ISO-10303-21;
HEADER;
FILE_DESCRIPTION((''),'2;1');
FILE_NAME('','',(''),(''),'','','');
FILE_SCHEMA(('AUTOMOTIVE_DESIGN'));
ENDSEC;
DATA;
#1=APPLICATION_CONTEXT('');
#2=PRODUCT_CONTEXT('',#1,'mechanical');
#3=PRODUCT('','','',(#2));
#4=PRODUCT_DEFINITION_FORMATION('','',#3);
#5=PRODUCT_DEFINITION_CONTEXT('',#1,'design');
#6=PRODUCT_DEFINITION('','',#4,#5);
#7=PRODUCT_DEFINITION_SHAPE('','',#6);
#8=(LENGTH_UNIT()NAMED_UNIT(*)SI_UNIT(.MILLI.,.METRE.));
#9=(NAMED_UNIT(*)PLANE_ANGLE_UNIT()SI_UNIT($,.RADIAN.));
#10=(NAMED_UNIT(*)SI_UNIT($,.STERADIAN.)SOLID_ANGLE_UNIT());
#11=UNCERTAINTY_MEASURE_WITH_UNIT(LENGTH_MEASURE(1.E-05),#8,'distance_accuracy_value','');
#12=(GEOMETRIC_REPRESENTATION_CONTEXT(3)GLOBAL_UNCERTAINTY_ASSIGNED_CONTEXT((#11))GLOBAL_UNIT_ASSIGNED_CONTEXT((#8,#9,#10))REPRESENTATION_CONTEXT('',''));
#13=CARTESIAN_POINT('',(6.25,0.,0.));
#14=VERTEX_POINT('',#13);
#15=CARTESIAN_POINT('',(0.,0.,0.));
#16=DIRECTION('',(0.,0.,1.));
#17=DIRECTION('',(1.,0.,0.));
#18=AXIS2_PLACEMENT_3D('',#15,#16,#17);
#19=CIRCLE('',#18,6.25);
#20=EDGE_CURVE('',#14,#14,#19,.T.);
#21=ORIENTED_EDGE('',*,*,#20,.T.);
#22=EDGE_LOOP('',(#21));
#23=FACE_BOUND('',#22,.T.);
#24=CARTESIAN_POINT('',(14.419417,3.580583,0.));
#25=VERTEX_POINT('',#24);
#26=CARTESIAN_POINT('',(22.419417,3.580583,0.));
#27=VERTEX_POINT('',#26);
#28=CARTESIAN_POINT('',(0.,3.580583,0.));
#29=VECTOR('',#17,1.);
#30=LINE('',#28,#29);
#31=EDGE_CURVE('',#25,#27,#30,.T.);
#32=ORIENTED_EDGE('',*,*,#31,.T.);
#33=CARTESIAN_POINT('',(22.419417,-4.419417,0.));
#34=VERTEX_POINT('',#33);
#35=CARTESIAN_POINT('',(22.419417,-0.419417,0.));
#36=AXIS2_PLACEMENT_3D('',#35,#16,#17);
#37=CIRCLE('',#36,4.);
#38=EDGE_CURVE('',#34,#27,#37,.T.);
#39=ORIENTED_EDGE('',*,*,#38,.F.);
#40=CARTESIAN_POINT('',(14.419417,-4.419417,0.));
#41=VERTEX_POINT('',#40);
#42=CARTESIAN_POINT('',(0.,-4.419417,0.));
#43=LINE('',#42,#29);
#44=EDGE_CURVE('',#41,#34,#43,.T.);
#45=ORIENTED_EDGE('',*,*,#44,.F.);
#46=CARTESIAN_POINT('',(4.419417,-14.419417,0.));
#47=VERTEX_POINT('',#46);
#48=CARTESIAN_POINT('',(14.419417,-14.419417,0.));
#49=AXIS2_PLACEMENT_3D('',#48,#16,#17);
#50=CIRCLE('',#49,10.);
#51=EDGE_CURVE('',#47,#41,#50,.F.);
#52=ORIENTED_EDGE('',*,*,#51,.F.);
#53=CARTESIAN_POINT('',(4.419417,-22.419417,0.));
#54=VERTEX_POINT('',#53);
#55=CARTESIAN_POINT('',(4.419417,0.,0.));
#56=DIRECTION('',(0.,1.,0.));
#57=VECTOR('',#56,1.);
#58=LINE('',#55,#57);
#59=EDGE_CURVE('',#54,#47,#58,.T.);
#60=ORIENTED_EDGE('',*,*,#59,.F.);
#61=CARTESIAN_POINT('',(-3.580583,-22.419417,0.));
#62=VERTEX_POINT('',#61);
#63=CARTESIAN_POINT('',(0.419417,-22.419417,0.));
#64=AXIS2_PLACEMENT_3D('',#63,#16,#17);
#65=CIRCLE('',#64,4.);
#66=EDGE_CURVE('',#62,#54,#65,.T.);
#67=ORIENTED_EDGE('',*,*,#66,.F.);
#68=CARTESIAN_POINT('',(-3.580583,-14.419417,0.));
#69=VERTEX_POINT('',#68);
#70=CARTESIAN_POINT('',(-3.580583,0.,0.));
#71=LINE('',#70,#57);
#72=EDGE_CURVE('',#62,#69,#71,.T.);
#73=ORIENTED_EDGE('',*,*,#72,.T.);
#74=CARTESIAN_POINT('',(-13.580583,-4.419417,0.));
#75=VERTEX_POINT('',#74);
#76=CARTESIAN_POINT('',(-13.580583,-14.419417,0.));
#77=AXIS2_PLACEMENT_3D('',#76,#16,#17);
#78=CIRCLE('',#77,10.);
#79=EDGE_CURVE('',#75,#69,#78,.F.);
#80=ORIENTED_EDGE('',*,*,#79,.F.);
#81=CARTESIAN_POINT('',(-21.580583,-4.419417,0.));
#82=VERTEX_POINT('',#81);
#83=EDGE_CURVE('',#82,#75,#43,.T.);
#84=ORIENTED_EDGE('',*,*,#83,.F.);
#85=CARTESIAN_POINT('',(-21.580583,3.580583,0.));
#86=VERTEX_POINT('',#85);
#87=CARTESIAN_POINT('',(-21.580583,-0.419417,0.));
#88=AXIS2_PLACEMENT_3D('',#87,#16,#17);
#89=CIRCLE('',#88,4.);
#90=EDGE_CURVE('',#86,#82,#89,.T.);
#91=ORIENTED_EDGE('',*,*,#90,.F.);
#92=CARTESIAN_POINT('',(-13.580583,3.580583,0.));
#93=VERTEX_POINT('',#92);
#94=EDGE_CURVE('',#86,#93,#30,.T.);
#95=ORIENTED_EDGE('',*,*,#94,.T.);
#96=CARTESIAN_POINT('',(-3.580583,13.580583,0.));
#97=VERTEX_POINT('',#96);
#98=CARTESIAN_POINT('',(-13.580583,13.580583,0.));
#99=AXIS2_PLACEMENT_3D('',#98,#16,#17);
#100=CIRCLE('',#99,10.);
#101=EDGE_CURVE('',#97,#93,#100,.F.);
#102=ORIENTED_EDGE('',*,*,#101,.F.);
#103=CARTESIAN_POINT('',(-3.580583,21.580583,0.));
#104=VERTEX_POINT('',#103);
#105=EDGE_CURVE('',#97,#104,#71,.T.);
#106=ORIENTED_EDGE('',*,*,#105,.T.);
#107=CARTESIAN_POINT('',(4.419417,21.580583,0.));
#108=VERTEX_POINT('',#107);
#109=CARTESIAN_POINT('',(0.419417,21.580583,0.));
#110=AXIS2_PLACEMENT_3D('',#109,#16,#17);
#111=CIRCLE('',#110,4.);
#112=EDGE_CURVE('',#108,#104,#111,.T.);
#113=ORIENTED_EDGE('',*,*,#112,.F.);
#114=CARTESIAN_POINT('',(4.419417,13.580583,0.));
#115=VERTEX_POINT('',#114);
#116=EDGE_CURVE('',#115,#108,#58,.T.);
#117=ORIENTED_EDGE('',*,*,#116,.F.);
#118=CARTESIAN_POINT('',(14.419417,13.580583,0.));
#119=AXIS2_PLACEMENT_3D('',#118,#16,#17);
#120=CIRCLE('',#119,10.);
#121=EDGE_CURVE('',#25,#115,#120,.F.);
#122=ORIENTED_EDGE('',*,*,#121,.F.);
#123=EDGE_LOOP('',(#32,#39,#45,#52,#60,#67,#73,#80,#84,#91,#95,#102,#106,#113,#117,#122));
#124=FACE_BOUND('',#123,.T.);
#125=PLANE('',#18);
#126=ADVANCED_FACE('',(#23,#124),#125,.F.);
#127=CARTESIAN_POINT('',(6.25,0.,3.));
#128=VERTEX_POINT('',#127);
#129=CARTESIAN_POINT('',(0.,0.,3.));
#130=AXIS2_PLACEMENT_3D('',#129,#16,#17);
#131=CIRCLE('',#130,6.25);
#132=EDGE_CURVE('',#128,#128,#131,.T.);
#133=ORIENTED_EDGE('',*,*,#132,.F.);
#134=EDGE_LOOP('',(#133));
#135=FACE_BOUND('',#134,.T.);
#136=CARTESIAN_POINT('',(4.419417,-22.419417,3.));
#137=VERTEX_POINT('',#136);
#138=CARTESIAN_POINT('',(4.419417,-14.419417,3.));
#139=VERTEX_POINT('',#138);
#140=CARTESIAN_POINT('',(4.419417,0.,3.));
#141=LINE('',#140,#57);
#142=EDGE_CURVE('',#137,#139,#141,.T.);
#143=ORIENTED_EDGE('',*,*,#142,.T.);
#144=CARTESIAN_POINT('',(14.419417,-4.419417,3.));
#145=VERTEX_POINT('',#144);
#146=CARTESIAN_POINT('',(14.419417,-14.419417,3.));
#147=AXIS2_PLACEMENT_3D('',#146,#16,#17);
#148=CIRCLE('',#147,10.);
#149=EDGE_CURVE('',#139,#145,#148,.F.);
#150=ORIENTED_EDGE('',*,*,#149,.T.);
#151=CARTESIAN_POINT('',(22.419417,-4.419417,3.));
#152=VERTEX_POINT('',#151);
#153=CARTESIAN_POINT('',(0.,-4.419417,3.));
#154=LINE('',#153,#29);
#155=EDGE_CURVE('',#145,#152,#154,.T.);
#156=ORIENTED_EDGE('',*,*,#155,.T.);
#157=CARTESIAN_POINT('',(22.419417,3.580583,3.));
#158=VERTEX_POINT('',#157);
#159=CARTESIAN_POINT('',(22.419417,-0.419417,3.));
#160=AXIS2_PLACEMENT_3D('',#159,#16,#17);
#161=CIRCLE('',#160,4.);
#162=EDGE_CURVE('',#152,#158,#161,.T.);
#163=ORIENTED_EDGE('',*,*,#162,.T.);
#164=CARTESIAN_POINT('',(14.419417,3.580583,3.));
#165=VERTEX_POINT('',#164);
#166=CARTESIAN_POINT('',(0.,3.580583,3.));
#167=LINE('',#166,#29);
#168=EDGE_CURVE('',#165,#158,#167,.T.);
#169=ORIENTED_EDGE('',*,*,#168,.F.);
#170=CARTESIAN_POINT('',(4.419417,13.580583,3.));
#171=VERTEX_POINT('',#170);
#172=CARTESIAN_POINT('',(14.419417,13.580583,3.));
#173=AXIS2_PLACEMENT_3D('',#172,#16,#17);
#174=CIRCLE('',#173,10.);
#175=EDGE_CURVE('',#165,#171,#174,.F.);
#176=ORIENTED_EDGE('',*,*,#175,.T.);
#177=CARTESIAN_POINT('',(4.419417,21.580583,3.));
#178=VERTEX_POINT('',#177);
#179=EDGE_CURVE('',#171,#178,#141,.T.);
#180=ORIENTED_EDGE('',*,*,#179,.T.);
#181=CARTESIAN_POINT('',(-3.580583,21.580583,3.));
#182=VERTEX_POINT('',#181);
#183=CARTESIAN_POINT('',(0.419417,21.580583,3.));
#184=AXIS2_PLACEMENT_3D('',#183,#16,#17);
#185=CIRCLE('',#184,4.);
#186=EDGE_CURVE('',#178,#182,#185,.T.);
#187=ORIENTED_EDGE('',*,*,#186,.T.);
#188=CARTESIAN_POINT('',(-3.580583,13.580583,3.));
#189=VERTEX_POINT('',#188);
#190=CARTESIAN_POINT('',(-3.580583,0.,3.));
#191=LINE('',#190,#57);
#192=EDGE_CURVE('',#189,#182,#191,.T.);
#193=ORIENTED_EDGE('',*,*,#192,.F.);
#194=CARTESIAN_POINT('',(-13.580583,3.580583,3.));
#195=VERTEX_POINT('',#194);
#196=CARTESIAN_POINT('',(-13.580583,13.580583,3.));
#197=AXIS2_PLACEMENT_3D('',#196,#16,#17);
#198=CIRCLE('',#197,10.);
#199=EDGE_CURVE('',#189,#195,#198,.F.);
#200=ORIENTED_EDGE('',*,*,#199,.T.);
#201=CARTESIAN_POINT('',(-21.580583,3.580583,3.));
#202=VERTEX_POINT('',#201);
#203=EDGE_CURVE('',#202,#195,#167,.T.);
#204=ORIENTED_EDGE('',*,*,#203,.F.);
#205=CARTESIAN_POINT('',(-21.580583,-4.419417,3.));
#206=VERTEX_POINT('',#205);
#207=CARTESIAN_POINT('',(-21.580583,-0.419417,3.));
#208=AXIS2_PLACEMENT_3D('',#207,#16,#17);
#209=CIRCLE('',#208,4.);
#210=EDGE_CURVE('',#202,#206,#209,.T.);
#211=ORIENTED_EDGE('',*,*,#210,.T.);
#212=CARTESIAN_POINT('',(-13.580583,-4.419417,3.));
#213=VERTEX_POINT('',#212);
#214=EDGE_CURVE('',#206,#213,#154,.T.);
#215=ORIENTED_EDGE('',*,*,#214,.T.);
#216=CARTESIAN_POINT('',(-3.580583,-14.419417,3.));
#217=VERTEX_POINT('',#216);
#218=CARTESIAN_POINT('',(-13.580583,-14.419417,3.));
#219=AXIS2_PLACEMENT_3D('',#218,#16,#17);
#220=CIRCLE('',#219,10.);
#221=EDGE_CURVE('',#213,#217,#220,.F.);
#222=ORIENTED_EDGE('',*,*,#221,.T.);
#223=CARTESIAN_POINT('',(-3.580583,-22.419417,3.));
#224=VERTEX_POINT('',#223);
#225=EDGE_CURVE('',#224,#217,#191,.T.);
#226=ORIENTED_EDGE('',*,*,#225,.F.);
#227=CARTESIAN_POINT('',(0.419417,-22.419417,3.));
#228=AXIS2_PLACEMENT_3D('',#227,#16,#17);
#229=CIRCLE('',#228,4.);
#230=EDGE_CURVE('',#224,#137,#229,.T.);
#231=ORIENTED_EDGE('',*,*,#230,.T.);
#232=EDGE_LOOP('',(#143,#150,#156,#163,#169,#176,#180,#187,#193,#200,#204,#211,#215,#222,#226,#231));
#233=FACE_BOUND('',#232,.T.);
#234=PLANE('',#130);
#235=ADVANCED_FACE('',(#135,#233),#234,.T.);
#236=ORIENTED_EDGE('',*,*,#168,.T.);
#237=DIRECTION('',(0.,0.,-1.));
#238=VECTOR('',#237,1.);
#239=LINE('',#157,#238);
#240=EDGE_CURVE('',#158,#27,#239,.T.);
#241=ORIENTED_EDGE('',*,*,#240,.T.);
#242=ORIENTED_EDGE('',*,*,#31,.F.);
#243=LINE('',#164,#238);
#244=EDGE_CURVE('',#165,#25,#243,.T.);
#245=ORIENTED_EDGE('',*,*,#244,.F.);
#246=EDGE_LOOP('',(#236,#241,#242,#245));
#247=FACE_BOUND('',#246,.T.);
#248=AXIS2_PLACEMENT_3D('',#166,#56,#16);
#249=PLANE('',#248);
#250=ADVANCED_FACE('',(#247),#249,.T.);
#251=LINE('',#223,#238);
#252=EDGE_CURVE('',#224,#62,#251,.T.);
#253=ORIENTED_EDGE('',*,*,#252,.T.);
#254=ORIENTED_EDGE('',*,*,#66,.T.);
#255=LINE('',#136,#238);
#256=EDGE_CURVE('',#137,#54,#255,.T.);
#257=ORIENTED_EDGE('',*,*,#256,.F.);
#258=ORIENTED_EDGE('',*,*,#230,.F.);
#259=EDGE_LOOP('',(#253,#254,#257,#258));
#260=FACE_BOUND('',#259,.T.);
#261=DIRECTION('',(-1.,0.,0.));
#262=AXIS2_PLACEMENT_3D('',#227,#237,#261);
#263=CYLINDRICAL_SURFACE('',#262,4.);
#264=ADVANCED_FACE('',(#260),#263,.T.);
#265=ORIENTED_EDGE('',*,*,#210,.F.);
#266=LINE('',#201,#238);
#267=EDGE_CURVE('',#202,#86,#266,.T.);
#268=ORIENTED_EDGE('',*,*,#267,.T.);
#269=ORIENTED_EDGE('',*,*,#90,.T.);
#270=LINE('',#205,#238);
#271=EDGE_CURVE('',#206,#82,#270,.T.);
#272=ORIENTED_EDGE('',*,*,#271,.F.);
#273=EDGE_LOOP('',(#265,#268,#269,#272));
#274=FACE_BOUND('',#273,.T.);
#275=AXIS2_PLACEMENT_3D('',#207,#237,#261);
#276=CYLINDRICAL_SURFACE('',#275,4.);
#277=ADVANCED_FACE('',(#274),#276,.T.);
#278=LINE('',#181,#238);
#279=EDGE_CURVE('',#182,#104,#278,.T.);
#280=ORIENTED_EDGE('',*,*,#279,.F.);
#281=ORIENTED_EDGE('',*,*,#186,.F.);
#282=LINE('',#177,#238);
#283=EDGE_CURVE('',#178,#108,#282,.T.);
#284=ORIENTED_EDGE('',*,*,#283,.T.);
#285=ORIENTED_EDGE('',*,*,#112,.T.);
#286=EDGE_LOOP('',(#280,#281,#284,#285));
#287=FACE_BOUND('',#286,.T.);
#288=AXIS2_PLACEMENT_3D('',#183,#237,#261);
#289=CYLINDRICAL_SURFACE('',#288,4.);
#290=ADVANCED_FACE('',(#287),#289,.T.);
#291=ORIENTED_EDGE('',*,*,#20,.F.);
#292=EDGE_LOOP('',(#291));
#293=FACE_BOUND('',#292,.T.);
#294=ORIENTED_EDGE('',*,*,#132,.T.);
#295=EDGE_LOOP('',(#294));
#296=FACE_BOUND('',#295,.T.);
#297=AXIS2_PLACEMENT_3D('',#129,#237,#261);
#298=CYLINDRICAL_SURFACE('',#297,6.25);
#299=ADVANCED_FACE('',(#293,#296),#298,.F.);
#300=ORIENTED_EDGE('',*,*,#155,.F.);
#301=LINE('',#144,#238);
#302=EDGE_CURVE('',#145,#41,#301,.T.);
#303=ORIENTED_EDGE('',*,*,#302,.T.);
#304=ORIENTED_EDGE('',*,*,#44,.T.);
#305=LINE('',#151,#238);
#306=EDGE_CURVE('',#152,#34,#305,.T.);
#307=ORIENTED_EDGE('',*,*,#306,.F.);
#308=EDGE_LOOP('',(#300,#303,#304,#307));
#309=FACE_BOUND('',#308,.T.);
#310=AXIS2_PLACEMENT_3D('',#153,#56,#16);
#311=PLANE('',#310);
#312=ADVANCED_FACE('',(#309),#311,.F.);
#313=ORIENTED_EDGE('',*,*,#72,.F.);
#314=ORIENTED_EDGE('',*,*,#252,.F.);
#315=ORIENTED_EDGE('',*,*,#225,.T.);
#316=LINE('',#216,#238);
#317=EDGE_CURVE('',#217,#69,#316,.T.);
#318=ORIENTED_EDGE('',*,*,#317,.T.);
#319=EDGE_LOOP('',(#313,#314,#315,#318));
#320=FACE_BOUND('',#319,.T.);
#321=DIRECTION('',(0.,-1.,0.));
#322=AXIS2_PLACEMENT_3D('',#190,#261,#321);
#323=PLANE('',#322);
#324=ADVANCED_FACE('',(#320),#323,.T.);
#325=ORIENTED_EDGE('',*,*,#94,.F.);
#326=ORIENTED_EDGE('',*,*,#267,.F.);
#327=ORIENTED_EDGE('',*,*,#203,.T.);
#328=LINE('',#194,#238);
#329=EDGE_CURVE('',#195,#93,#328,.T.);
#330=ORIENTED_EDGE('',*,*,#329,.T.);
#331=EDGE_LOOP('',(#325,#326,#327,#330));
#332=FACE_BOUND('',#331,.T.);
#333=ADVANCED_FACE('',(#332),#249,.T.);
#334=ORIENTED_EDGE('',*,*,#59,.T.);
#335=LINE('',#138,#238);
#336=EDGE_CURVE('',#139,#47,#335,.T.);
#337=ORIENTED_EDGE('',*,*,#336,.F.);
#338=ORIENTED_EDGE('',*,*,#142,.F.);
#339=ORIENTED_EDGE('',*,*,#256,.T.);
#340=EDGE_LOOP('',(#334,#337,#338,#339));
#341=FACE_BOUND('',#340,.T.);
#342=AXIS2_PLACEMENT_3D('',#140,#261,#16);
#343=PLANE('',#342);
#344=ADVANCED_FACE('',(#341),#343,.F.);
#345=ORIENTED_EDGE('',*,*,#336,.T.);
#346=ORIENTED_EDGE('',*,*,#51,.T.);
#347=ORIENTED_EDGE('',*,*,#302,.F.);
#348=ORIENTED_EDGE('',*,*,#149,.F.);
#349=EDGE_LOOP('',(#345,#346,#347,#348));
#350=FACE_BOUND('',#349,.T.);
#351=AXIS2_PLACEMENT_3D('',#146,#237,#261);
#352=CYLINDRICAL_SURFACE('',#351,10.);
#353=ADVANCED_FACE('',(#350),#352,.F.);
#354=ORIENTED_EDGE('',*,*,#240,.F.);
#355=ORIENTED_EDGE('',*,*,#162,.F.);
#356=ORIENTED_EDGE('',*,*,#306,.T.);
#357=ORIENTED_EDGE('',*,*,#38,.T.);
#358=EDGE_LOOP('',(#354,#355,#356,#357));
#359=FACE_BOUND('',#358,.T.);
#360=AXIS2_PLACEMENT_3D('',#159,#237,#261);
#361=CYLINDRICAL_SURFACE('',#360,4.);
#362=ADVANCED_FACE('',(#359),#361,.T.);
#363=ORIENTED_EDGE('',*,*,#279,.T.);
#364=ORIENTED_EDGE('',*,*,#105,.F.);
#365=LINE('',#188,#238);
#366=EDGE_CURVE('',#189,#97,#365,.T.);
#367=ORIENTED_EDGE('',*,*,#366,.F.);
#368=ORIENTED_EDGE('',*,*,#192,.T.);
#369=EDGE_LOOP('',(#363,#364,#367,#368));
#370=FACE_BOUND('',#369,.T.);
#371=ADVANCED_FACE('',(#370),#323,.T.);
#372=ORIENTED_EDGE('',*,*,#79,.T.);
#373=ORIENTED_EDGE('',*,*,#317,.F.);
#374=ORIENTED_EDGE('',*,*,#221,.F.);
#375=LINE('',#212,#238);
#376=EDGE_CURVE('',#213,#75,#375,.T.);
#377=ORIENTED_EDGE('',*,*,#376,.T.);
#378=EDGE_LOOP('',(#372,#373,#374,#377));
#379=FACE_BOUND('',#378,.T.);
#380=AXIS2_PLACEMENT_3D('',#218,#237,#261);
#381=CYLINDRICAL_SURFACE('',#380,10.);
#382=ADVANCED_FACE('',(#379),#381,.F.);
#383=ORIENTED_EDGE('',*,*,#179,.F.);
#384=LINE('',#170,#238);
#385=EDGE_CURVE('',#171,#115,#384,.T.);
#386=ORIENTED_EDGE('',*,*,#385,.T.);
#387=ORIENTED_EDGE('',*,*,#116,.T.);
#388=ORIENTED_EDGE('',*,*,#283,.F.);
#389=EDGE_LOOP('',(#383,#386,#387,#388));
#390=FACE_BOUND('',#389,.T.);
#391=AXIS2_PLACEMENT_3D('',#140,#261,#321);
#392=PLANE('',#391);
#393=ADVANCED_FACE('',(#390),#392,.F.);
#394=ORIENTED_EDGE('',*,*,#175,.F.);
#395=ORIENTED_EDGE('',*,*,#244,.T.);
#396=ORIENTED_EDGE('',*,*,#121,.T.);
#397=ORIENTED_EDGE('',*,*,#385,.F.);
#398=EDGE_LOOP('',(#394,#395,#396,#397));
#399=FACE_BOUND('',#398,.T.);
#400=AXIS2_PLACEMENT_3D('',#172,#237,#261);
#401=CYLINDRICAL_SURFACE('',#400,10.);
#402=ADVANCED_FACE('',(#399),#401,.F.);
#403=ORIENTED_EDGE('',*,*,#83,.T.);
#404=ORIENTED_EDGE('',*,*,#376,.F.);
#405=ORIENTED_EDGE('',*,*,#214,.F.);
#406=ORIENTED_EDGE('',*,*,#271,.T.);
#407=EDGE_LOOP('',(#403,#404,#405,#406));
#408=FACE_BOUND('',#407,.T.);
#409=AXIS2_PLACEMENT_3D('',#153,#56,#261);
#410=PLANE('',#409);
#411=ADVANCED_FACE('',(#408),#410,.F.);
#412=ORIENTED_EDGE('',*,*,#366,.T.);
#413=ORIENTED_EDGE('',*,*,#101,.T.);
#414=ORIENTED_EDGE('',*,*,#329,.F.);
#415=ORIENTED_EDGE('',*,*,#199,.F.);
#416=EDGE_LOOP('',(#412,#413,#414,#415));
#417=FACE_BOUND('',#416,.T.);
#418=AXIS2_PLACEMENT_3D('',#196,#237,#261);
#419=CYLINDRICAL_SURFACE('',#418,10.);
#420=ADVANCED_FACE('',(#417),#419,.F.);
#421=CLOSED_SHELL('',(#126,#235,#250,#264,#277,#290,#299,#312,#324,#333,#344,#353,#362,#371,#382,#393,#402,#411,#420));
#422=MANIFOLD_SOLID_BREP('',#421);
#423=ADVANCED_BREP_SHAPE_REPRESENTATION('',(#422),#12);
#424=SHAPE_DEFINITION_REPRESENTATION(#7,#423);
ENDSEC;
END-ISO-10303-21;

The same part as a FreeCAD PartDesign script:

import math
import FreeCAD as App
import Part
import Sketcher
from FreeCAD import Vector

doc = App.newDocument("Part")
body = doc.addObject("PartDesign::Body", "Body")

# Sketch on XY plane
sketch1 = body.newObject("Sketcher::SketchObject", "Sketch")
sketch1.AttachmentSupport = (doc.getObject("XY_Plane"), [""])
sketch1.MapMode = "FlatFace"
sketch1.addGeometry(Part.LineSegment(Vector(-3.6, -14.4, 0), Vector(-3.6, -22.4, 0)), False)
sketch1.addGeometry(Part.ArcOfCircle(Part.Circle(Vector(0.4, -22.4, 0), Vector(0, 0, 1), 4), math.radians(180), math.radians(360)), False)
sketch1.addGeometry(Part.LineSegment(Vector(4.4, -22.4, 0), Vector(4.4, -14.4, 0)), False)
sketch1.addGeometry(Part.ArcOfCircle(Part.Circle(Vector(14.4, -14.4, 0), Vector(0, 0, 1), 10), math.radians(90), math.radians(180)), False)
sketch1.addGeometry(Part.LineSegment(Vector(14.4, -4.4, 0), Vector(22.4, -4.4, 0)), False)
sketch1.addGeometry(Part.ArcOfCircle(Part.Circle(Vector(22.4, -0.4, 0), Vector(0, 0, 1), 4), math.radians(-90), math.radians(90)), False)
sketch1.addGeometry(Part.LineSegment(Vector(22.4, 3.6, 0), Vector(14.4, 3.6, 0)), False)
sketch1.addGeometry(Part.ArcOfCircle(Part.Circle(Vector(14.4, 13.6, 0), Vector(0, 0, 1), 10), math.radians(-180), math.radians(-90)), False)
sketch1.addGeometry(Part.LineSegment(Vector(4.4, 13.6, 0), Vector(4.4, 21.6, 0)), False)
sketch1.addGeometry(Part.ArcOfCircle(Part.Circle(Vector(0.4, 21.6, 0), Vector(0, 0, 1), 4), math.radians(0), math.radians(180)), False)
sketch1.addGeometry(Part.LineSegment(Vector(-3.6, 21.6, 0), Vector(-3.6, 13.6, 0)), False)
sketch1.addGeometry(Part.ArcOfCircle(Part.Circle(Vector(-13.6, 13.6, 0), Vector(0, 0, 1), 10), math.radians(-90), math.radians(0)), False)
sketch1.addGeometry(Part.LineSegment(Vector(-13.6, 3.6, 0), Vector(-21.6, 3.6, 0)), False)
sketch1.addGeometry(Part.ArcOfCircle(Part.Circle(Vector(-21.6, -0.4, 0), Vector(0, 0, 1), 4), math.radians(90), math.radians(270)), False)
sketch1.addGeometry(Part.LineSegment(Vector(-21.6, -4.4, 0), Vector(-13.6, -4.4, 0)), False)
sketch1.addGeometry(Part.ArcOfCircle(Part.Circle(Vector(-13.6, -14.4, 0), Vector(0, 0, 1), 10), math.radians(0), math.radians(90)), False)
sketch1.addGeometry(Part.Circle(Vector(0, 0, 0), Vector(0, 0, 1), 6.2), False)
sketch1.addConstraint(Sketcher.Constraint("Tangent", 0, 2, 1, 1))
sketch1.addConstraint(Sketcher.Constraint("Tangent", 1, 2, 2, 1))
sketch1.addConstraint(Sketcher.Constraint("Tangent", 2, 2, 3, 2))
sketch1.addConstraint(Sketcher.Constraint("Tangent", 3, 1, 4, 1))
sketch1.addConstraint(Sketcher.Constraint("Tangent", 4, 2, 5, 1))
sketch1.addConstraint(Sketcher.Constraint("Tangent", 5, 2, 6, 1))
sketch1.addConstraint(Sketcher.Constraint("Tangent", 6, 2, 7, 2))
sketch1.addConstraint(Sketcher.Constraint("Tangent", 7, 1, 8, 1))
sketch1.addConstraint(Sketcher.Constraint("Tangent", 8, 2, 9, 1))
sketch1.addConstraint(Sketcher.Constraint("Tangent", 9, 2, 10, 1))
sketch1.addConstraint(Sketcher.Constraint("Tangent", 10, 2, 11, 2))
sketch1.addConstraint(Sketcher.Constraint("Tangent", 11, 1, 12, 1))
sketch1.addConstraint(Sketcher.Constraint("Tangent", 12, 2, 13, 1))
sketch1.addConstraint(Sketcher.Constraint("Tangent", 13, 2, 14, 1))
sketch1.addConstraint(Sketcher.Constraint("Tangent", 14, 2, 15, 2))
sketch1.addConstraint(Sketcher.Constraint("Tangent", 15, 1, 0, 1))
sketch1.addConstraint(Sketcher.Constraint("Vertical", 0))
sketch1.addConstraint(Sketcher.Constraint("Vertical", 2))
sketch1.addConstraint(Sketcher.Constraint("Horizontal", 4))
sketch1.addConstraint(Sketcher.Constraint("Horizontal", 6))
sketch1.addConstraint(Sketcher.Constraint("Vertical", 8))
sketch1.addConstraint(Sketcher.Constraint("Vertical", 10))
sketch1.addConstraint(Sketcher.Constraint("Horizontal", 12))
sketch1.addConstraint(Sketcher.Constraint("Horizontal", 14))
sketch1.addConstraint(Sketcher.Constraint("Coincident", 16, 3, -1, 1))
sketch1.addConstraint(Sketcher.Constraint("Equal", 1, 5))
sketch1.addConstraint(Sketcher.Constraint("Equal", 3, 7))
sketch1.addConstraint(Sketcher.Constraint("Equal", 5, 9))
sketch1.addConstraint(Sketcher.Constraint("Equal", 7, 11))
sketch1.addConstraint(Sketcher.Constraint("Equal", 9, 13))
sketch1.addConstraint(Sketcher.Constraint("Equal", 11, 15))
sketch1.addConstraint(Sketcher.Constraint("Horizontal", 7, 3, 11, 3))
sketch1.addConstraint(Sketcher.Constraint("Vertical", 3, 3, 7, 3))
sketch1.addConstraint(Sketcher.Constraint("Equal", 6, 12))
sketch1.addConstraint(Sketcher.Constraint("Equal", 14, 0))
sketch1.addConstraint(Sketcher.Constraint("Equal", 2, 8))
sketch1.addConstraint(Sketcher.Constraint("Radius", 1, 4.0))
sketch1.addConstraint(Sketcher.Constraint("Radius", 3, 10.0))
sketch1.addConstraint(Sketcher.Constraint("Diameter", 16, 12.5))
sketch1.addConstraint(Sketcher.Constraint("DistanceX", 4, 1, 4, 2, 8.0))
sketch1.addConstraint(Sketcher.Constraint("DistanceX", -1, 1, 1, 3, 0.419417))
sketch1.addConstraint(Sketcher.Constraint("DistanceY", 1, 3, -1, 1, 22.419417))
pad1 = body.newObject("PartDesign::Pad", "Pad")
pad1.Profile = sketch1
pad1.Length = 3

doc.recompute()
